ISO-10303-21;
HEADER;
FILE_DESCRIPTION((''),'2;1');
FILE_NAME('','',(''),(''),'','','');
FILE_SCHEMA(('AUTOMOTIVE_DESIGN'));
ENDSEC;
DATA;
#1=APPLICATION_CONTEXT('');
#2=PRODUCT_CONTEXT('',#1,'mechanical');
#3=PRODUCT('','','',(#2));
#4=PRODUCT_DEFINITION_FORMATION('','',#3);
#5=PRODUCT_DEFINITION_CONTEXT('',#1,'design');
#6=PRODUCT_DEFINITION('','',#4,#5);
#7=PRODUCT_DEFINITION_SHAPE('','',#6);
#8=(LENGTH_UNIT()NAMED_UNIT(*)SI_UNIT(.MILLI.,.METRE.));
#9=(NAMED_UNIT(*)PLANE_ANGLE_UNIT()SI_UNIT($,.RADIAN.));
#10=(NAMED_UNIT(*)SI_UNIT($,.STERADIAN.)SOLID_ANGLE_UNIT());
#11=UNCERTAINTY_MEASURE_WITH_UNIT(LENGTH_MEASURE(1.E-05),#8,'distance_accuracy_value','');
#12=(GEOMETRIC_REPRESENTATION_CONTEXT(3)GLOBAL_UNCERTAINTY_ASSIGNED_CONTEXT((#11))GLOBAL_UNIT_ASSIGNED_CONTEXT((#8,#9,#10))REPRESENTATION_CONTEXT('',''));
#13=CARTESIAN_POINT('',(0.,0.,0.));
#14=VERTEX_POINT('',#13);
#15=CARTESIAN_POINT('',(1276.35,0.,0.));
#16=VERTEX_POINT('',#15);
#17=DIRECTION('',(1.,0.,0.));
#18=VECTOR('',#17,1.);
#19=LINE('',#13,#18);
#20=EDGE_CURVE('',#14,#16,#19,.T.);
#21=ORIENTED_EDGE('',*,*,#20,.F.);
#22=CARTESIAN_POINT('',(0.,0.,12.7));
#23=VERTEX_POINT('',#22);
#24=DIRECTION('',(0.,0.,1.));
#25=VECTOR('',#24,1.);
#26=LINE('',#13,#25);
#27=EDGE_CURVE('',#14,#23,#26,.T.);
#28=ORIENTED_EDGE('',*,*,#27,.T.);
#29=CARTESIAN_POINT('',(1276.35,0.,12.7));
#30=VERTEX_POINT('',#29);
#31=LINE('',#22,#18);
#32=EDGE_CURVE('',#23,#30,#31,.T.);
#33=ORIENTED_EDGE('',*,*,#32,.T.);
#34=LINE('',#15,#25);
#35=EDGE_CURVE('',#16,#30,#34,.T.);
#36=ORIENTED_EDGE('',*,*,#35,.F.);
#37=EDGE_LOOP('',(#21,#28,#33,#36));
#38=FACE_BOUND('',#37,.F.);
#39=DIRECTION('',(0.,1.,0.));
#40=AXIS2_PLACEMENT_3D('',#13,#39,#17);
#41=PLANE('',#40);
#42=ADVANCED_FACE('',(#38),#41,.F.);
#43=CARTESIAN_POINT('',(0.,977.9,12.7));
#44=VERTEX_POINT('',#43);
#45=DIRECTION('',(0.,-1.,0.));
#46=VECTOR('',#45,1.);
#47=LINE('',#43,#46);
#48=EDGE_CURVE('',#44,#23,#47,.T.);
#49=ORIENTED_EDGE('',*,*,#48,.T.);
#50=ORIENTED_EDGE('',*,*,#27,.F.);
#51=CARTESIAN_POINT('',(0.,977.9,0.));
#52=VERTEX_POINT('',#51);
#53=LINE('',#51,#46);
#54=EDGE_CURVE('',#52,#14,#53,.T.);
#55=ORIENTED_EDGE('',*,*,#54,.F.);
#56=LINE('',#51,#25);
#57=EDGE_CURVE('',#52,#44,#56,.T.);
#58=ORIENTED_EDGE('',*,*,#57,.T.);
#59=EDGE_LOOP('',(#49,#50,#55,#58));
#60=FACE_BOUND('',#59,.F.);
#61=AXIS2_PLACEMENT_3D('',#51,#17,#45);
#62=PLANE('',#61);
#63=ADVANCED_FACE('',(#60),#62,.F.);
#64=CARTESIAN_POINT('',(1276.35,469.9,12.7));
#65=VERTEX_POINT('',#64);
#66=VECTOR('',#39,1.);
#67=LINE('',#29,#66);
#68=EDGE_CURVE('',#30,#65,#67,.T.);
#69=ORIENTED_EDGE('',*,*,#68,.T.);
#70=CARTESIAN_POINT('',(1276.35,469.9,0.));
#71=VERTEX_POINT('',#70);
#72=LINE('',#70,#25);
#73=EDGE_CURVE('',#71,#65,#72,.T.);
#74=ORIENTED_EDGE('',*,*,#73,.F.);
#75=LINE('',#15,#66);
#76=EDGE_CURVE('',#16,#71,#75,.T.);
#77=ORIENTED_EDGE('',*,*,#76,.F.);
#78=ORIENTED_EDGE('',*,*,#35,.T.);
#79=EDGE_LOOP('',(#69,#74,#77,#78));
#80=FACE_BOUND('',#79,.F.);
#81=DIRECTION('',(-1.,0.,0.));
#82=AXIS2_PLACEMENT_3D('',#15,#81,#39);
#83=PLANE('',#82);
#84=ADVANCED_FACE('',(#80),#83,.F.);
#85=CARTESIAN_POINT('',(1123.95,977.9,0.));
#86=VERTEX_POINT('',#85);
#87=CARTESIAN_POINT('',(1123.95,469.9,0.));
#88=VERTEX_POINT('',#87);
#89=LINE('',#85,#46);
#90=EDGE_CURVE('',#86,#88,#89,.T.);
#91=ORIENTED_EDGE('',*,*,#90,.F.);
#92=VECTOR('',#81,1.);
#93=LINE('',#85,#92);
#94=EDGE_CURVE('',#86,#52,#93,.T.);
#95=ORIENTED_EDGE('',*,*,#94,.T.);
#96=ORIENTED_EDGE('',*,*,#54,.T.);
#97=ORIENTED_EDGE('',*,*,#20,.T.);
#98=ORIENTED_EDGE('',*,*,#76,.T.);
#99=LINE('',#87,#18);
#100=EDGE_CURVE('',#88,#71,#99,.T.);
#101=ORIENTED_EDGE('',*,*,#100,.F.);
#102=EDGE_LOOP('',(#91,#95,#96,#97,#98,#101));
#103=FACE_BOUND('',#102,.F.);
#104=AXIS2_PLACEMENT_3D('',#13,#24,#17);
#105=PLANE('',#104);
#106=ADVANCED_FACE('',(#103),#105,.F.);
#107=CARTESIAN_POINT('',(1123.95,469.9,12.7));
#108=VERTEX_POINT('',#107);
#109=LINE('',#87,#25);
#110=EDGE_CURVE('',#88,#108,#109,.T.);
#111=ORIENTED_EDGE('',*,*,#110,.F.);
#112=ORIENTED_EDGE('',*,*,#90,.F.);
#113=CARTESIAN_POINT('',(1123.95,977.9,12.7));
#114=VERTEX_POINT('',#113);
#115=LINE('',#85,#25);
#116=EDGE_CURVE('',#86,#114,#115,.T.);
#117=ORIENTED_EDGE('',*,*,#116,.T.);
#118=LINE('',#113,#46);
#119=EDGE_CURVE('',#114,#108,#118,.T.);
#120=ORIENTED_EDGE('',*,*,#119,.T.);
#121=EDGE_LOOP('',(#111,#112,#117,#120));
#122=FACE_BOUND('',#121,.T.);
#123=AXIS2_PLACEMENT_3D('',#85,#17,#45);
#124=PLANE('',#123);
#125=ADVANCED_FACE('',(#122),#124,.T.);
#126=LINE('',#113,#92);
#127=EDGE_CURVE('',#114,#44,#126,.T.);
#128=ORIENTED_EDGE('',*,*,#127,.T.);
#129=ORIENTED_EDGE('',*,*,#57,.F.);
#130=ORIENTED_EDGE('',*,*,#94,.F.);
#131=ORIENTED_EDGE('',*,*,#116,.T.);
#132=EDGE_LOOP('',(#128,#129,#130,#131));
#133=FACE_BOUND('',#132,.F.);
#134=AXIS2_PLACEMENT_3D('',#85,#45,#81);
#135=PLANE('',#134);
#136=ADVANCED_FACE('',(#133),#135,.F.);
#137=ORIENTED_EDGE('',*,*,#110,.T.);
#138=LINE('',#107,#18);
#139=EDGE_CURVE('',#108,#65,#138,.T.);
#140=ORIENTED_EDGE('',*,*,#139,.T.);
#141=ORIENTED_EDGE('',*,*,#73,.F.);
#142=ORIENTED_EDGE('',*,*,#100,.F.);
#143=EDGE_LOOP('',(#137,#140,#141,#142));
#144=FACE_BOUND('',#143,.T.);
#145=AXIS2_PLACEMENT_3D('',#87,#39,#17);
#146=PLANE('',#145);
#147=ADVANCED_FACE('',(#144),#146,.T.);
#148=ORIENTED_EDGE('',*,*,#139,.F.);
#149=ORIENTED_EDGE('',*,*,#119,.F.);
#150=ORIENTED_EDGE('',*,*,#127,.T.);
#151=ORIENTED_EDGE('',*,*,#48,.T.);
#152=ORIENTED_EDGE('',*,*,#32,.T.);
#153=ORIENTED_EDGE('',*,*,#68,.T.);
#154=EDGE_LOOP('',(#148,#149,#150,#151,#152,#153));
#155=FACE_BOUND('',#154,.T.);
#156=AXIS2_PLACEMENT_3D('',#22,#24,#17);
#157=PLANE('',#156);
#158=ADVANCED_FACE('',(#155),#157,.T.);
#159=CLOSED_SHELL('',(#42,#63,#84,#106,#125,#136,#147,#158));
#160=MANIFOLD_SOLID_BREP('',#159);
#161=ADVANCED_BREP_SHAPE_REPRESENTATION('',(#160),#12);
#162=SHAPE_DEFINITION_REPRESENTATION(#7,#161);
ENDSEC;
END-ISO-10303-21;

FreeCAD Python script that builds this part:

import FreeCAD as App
import Part
import Sketcher

V = App.Vector
Q = App.Units.Quantity


def add_polygon(sketch, points):
    """Adds a closed chain of lines whose ends are joined by coincident constraints."""
    first, n = sketch.GeometryCount, len(points)
    for a, b in zip(points, points[1:] + points[:1]):
        sketch.addGeometry(Part.LineSegment(App.Vector(*a, 0), App.Vector(*b, 0)), False)
    for i in range(n):
        sketch.addConstraint(Sketcher.Constraint("Coincident", first + i, 2, first + (i + 1) % n, 1))

doc = App.newDocument("Part")
body = doc.addObject("PartDesign::Body", "Body")

# Sketch on XY plane
sketch1 = body.newObject("Sketcher::SketchObject", "Sketch")
sketch1.AttachmentSupport = (doc.getObject("XY_Plane"), [""])
sketch1.MapMode = "FlatFace"
add_polygon(sketch1, [(0, 977.9), (0, 0), (1276.35, 0), (1276.35, 469.9), (1123.95, 469.9), (1123.95, 977.9)])  # lines 0-5
sketch1.addConstraint(Sketcher.Constraint("Vertical", 0))
sketch1.addConstraint(Sketcher.Constraint("Horizontal", 1))
sketch1.addConstraint(Sketcher.Constraint("Vertical", 2))
sketch1.addConstraint(Sketcher.Constraint("Horizontal", 3))
sketch1.addConstraint(Sketcher.Constraint("Vertical", 4))
sketch1.addConstraint(Sketcher.Constraint("Horizontal", 5))
sketch1.addConstraint(Sketcher.Constraint("Coincident", 0, 2, -1, 1))
sketch1.addConstraint(Sketcher.Constraint("DistanceY", 4, 1, 4, 2, Q("20 in")))
sketch1.addConstraint(Sketcher.Constraint("DistanceY", 0, 2, 0, 1, Q("38.5 in")))
sketch1.addConstraint(Sketcher.Constraint("DistanceX", 1, 1, 1, 2, Q("50.25 in")))
sketch1.addConstraint(Sketcher.Constraint("DistanceX", 5, 2, 5, 1, Q("44.25 in")))
pad1 = body.newObject("PartDesign::Pad", "Pad")
pad1.Profile = sketch1
pad1.Length = Q("0.5 in")

doc.recompute()
